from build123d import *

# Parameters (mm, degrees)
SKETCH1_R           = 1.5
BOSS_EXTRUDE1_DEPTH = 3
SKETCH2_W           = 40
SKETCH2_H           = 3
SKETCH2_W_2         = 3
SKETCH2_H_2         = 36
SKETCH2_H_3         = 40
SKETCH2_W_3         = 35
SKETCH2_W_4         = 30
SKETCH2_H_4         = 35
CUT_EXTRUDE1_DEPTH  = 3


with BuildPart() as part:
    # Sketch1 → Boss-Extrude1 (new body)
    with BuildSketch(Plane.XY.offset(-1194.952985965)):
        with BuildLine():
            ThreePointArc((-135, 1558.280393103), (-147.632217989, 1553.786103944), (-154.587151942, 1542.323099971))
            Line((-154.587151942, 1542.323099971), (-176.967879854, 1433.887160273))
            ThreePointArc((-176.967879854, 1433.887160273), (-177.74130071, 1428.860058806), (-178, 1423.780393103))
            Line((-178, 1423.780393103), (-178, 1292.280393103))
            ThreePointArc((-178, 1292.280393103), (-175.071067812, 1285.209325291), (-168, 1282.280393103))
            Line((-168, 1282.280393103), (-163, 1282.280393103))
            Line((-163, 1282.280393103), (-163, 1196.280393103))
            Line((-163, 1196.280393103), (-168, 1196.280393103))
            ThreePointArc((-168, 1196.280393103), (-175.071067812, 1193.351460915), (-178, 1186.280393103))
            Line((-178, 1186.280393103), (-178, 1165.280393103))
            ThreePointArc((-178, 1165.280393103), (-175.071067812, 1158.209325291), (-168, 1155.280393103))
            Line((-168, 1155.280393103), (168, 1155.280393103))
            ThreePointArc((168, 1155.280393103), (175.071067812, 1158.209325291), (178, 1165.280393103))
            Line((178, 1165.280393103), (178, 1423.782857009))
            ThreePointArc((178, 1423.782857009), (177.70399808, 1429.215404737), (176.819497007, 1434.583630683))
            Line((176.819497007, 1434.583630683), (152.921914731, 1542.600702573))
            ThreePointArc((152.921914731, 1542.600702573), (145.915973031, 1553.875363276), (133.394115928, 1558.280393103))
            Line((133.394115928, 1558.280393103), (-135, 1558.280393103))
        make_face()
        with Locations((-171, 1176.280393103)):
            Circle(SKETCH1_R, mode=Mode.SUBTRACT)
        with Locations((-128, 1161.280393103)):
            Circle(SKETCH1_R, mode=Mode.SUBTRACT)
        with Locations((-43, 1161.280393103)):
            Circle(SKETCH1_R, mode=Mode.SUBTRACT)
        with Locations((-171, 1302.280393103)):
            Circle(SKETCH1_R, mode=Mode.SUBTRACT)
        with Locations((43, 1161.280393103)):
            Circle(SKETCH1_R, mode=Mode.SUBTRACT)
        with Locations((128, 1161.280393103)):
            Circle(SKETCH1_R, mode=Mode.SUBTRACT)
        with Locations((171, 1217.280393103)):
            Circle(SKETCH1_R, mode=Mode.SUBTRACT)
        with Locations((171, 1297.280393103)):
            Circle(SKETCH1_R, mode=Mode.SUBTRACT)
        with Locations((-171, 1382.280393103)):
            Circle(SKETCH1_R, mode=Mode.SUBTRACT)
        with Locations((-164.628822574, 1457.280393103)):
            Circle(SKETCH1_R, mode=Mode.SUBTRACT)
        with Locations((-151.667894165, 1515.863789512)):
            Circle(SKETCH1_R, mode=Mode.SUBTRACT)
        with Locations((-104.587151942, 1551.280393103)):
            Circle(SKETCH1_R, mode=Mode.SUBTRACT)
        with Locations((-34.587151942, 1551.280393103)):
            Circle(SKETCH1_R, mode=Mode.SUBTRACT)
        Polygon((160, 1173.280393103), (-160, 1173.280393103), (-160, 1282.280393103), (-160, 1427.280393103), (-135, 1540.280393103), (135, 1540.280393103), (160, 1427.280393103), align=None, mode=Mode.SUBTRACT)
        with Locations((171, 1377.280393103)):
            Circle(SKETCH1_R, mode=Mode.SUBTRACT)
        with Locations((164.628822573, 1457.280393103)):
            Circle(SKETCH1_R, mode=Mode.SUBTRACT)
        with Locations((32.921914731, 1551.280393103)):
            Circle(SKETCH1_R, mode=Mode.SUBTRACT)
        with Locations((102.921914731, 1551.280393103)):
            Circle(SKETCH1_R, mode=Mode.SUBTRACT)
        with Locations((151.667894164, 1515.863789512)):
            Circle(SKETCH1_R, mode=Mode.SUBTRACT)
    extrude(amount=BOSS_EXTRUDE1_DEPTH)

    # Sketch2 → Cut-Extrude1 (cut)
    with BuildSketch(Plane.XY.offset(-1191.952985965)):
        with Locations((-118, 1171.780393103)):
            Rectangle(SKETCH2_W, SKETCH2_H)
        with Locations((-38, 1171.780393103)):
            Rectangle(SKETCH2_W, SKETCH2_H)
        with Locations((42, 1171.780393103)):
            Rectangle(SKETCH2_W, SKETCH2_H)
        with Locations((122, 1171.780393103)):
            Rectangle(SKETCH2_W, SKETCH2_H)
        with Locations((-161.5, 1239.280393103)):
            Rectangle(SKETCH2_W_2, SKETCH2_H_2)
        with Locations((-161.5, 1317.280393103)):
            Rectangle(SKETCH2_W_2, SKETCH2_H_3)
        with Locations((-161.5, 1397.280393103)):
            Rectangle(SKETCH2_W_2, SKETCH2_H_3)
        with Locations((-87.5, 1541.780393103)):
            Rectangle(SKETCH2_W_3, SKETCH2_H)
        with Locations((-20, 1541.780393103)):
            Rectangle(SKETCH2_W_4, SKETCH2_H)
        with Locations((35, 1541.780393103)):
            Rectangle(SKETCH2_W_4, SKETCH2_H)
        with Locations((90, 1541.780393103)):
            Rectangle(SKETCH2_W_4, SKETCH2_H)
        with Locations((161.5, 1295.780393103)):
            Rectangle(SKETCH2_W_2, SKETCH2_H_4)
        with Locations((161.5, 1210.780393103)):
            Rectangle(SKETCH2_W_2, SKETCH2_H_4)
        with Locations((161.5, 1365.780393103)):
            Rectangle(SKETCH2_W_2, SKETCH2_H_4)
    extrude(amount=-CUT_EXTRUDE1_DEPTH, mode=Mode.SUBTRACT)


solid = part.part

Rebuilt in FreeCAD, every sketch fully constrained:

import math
import FreeCAD as App
import Part
import Sketcher


def add_polygon(sketch, points):
    """Adds a closed chain of lines whose ends are joined by coincident constraints."""
    first, n = sketch.GeometryCount, len(points)
    for a, b in zip(points, points[1:] + points[:1]):
        sketch.addGeometry(Part.LineSegment(App.Vector(*a, 0), App.Vector(*b, 0)), False)
    for i in range(n):
        sketch.addConstraint(Sketcher.Constraint("Coincident", first + i, 2, first + (i + 1) % n, 1))

doc = App.newDocument("Part")
params = doc.addObject("Spreadsheet::Sheet", "Params")
for row, (alias, value) in enumerate([
    ("sketch1_diameter", "3 mm"),
    ("sketch1_radius", "20 mm"),
    ("sketch1_radius2", "50 mm"),
    ("sketch1_radius3", "10 mm"),
    ("sketch1_width", "5 mm"),
    ("pad1_length", "3 mm"),
    ("sketch2_width", "40 mm"),
    ("sketch2_width2", "3 mm"),
    ("sketch2_width3", "35 mm"),
    ("sketch2_width4", "30 mm"),
    ("sketch2_height", "36 mm"),
    ("pocket1_length", "3 mm"),
], start=1):
    params.set(f"A{row}", alias)
    params.set(f"B{row}", "=" + value)
    params.setAlias(f"B{row}", alias)

body = doc.addObject("PartDesign::Body", "Body")

sketch1 = doc.addObject("Sketcher::SketchObject", "Sketch")
body.addObject(sketch1)
sketch1.AttachmentSupport = (doc.XY_Plane, [""])
sketch1.MapMode = "FlatFace"
sketch1.AttachmentOffset = App.Placement(App.Vector(0, 0, -1194.952986), App.Rotation())
sketch1.addGeometry(Part.ArcOfCircle(Part.Circle(App.Vector(-135, 1538.3, 0), App.Vector(0, 0, 1), 20), math.radians(90), math.radians(168)), False)
sketch1.addGeometry(Part.LineSegment(App.Vector(-154.6, 1542.3, 0), App.Vector(-177, 1433.9, 0)), False)
sketch1.addGeometry(Part.ArcOfCircle(Part.Circle(App.Vector(-128, 1423.8, 0), App.Vector(0, 0, 1), 50), math.radians(168.34), math.radians(180)), False)
sketch1.addGeometry(Part.LineSegment(App.Vector(-178, 1423.8, 0), App.Vector(-178, 1292.3, 0)), False)
sketch1.addGeometry(Part.ArcOfCircle(Part.Circle(App.Vector(-168, 1292.3, 0), App.Vector(0, 0, 1), 10), math.radians(180), math.radians(270)), False)
sketch1.addGeometry(Part.LineSegment(App.Vector(-168, 1282.3, 0), App.Vector(-163, 1282.3, 0)), False)
sketch1.addGeometry(Part.LineSegment(App.Vector(-163, 1282.3, 0), App.Vector(-163, 1196.3, 0)), False)
sketch1.addGeometry(Part.LineSegment(App.Vector(-163, 1196.3, 0), App.Vector(-168, 1196.3, 0)), False)
sketch1.addGeometry(Part.ArcOfCircle(Part.Circle(App.Vector(-168, 1186.3, 0), App.Vector(0, 0, 1), 10), math.radians(90), math.radians(180)), False)
sketch1.addGeometry(Part.LineSegment(App.Vector(-178, 1186.3, 0), App.Vector(-178, 1165.3, 0)), False)
sketch1.addGeometry(Part.ArcOfCircle(Part.Circle(App.Vector(-168, 1165.3, 0), App.Vector(0, 0, 1), 10), math.radians(180), math.radians(270)), False)
sketch1.addGeometry(Part.LineSegment(App.Vector(-168, 1155.3, 0), App.Vector(168, 1155.3, 0)), False)
sketch1.addGeometry(Part.ArcOfCircle(Part.Circle(App.Vector(168, 1165.3, 0), App.Vector(0, 0, 1), 10), math.radians(-90), math.radians(0)), False)
sketch1.addGeometry(Part.LineSegment(App.Vector(178, 1165.3, 0), App.Vector(178, 1423.8, 0)), False)
sketch1.addGeometry(Part.ArcOfCircle(Part.Circle(App.Vector(128, 1423.8, 0), App.Vector(0, 0, 1), 50), math.radians(0), math.radians(12.48)), False)
sketch1.addGeometry(Part.LineSegment(App.Vector(176.8, 1434.6, 0), App.Vector(152.9, 1542.6, 0)), False)
sketch1.addGeometry(Part.ArcOfCircle(Part.Circle(App.Vector(133.4, 1538.3, 0), App.Vector(0, 0, 1), 20), math.radians(12), math.radians(90)), False)
sketch1.addGeometry(Part.LineSegment(App.Vector(133.4, 1558.3, 0), App.Vector(-135, 1558.3, 0)), False)
sketch1.addGeometry(Part.Circle(App.Vector(-171, 1176.3, 0), App.Vector(0, 0, 1), 1.5), False)
sketch1.addGeometry(Part.Circle(App.Vector(-128, 1161.3, 0), App.Vector(0, 0, 1), 1.5), False)
sketch1.addGeometry(Part.Circle(App.Vector(-43, 1161.3, 0), App.Vector(0, 0, 1), 1.5), False)
sketch1.addGeometry(Part.Circle(App.Vector(-171, 1302.3, 0), App.Vector(0, 0, 1), 1.5), False)
sketch1.addGeometry(Part.Circle(App.Vector(43, 1161.3, 0), App.Vector(0, 0, 1), 1.5), False)
sketch1.addGeometry(Part.Circle(App.Vector(128, 1161.3, 0), App.Vector(0, 0, 1), 1.5), False)
sketch1.addGeometry(Part.Circle(App.Vector(171, 1217.3, 0), App.Vector(0, 0, 1), 1.5), False)
sketch1.addGeometry(Part.Circle(App.Vector(171, 1297.3, 0), App.Vector(0, 0, 1), 1.5), False)
sketch1.addGeometry(Part.Circle(App.Vector(-171, 1382.3, 0), App.Vector(0, 0, 1), 1.5), False)
sketch1.addGeometry(Part.Circle(App.Vector(-164.6, 1457.3, 0), App.Vector(0, 0, 1), 1.5), False)
sketch1.addGeometry(Part.Circle(App.Vector(-151.7, 1515.9, 0), App.Vector(0, 0, 1), 1.5), False)
sketch1.addGeometry(Part.Circle(App.Vector(-104.6, 1551.3, 0), App.Vector(0, 0, 1), 1.5), False)
sketch1.addGeometry(Part.Circle(App.Vector(-34.6, 1551.3, 0), App.Vector(0, 0, 1), 1.5), False)
add_polygon(sketch1, [(160, 1427.3), (160, 1173.3), (-160, 1173.3), (-160, 1427.3), (-135, 1540.3), (135, 1540.3)])
sketch1.addGeometry(Part.Circle(App.Vector(171, 1377.3, 0), App.Vector(0, 0, 1), 1.5), False)
sketch1.addGeometry(Part.Circle(App.Vector(32.9, 1551.3, 0), App.Vector(0, 0, 1), 1.5), False)
sketch1.addGeometry(Part.Circle(App.Vector(164.6, 1457.3, 0), App.Vector(0, 0, 1), 1.5), False)
sketch1.addGeometry(Part.Circle(App.Vector(102.9, 1551.3, 0), App.Vector(0, 0, 1), 1.5), False)
sketch1.addGeometry(Part.Circle(App.Vector(151.7, 1515.9, 0), App.Vector(0, 0, 1), 1.5), False)
sketch1.addConstraint([
    Sketcher.Constraint("Tangent", 0, 2, 1, 1),
    Sketcher.Constraint("Tangent", 1, 2, 2, 1),
    Sketcher.Constraint("Tangent", 2, 2, 3, 1),
    Sketcher.Constraint("Tangent", 3, 2, 4, 1),
    Sketcher.Constraint("Tangent", 4, 2, 5, 1),
    Sketcher.Constraint("Coincident", 5, 2, 6, 1),
    Sketcher.Constraint("Coincident", 6, 2, 7, 1),
    Sketcher.Constraint("Tangent", 7, 2, 8, 1),
    Sketcher.Constraint("Tangent", 8, 2, 9, 1),
    Sketcher.Constraint("Tangent", 9, 2, 10, 1),
    Sketcher.Constraint("Tangent", 10, 2, 11, 1),
    Sketcher.Constraint("Tangent", 11, 2, 12, 1),
    Sketcher.Constraint("Tangent", 12, 2, 13, 1),
    Sketcher.Constraint("Tangent", 13, 2, 14, 1),
    Sketcher.Constraint("Tangent", 14, 2, 15, 1),
    Sketcher.Constraint("Tangent", 15, 2, 16, 1),
    Sketcher.Constraint("Tangent", 16, 2, 17, 1),
    Sketcher.Constraint("Tangent", 17, 2, 0, 1),
    Sketcher.Constraint("Vertical", 3),
    Sketcher.Constraint("Horizontal", 5),
    Sketcher.Constraint("Vertical", 6),
    Sketcher.Constraint("Horizontal", 7),
    Sketcher.Constraint("Vertical", 9),
    Sketcher.Constraint("Horizontal", 11),
    Sketcher.Constraint("Vertical", 13),
    Sketcher.Constraint("Horizontal", 17),
    Sketcher.Constraint("Vertical", 31),
    Sketcher.Constraint("Horizontal", 32),
    Sketcher.Constraint("Vertical", 33),
    Sketcher.Constraint("Horizontal", 35),
    Sketcher.Constraint("Equal", 4, 8),
    Sketcher.Constraint("Equal", 8, 10),
    Sketcher.Constraint("Equal", 10, 12),
    Sketcher.Constraint("Equal", 2, 14),
    Sketcher.Constraint("Equal", 0, 16),
    Sketcher.Constraint("Equal", 18, 19),
    Sketcher.Constraint("Equal", 19, 20),
    Sketcher.Constraint("Equal", 20, 21),
    Sketcher.Constraint("Equal", 21, 22),
    Sketcher.Constraint("Equal", 22, 23),
    Sketcher.Constraint("Equal", 23, 24),
    Sketcher.Constraint("Equal", 24, 25),
    Sketcher.Constraint("Equal", 25, 26),
    Sketcher.Constraint("Equal", 26, 27),
    Sketcher.Constraint("Equal", 27, 28),
    Sketcher.Constraint("Equal", 28, 29),
    Sketcher.Constraint("Equal", 29, 30),
    Sketcher.Constraint("Equal", 30, 37),
    Sketcher.Constraint("Equal", 37, 38),
    Sketcher.Constraint("Equal", 38, 39),
    Sketcher.Constraint("Equal", 39, 40),
    Sketcher.Constraint("Equal", 40, 41),
    Sketcher.Constraint("Symmetric", 20, 3, 22, 3, -2),
    Sketcher.Constraint("Symmetric", 19, 3, 23, 3, -2),
    Sketcher.Constraint("Symmetric", 27, 3, 39, 3, -2),
    Sketcher.Constraint("Symmetric", 28, 3, 41, 3, -2),
    Sketcher.Constraint("Symmetric", 33, 2, 36, 2, -2),
    Sketcher.Constraint("Parallel", 15, 36),
    Sketcher.Constraint("Horizontal", 19, 3, 20, 3),
    Sketcher.Constraint("Horizontal", 29, 3, 30, 3),
    Sketcher.Constraint("Horizontal", 30, 3, 38, 3),
    Sketcher.Constraint("Horizontal", 38, 3, 40, 3),
    Sketcher.Constraint("Vertical", 4, 3, 8, 3),
    Sketcher.Constraint("Vertical", 2, 3, 19, 3),
    Sketcher.Constraint("Vertical", 18, 3, 21, 3),
    Sketcher.Constraint("Vertical", 14, 3, 23, 3),
    Sketcher.Constraint("Vertical", 24, 3, 25, 3),
    Sketcher.Constraint("Vertical", 21, 3, 26, 3),
    Sketcher.Constraint("Vertical", 25, 3, 37, 3),
    Sketcher.Constraint("Vertical", 17, 2, 34, 2),
    Sketcher.Constraint("Equal", 34, 36),
    Sketcher.Constraint("Diameter", 18, 3.0),
    Sketcher.Constraint("Radius", 0, 20.0),
    Sketcher.Constraint("Radius", 2, 50.0),
    Sketcher.Constraint("Radius", 4, 10.0),
    Sketcher.Constraint("DistanceX", 5, 1, 5, 2, 5.0),
    Sketcher.Constraint("DistanceX", 11, 1, 11, 2, 336.0),
    Sketcher.Constraint("DistanceX", 32, 2, 32, 1, 320.0),
    Sketcher.Constraint("DistanceX", 35, 1, 35, 2, 270.0),
    Sketcher.Constraint("DistanceY", 6, 2, 6, 1, 86.0),
    Sketcher.Constraint("DistanceY", 9, 2, 9, 1, 21.0),
    Sketcher.Constraint("DistanceY", 31, 2, 31, 1, 254.0),
    Sketcher.Constraint("DistanceY", 3, 2, 3, 1, 131.5),
    Sketcher.Constraint("DistanceX", 18, 3, -1, 1, 171.0),
    Sketcher.Constraint("DistanceX", 20, 3, -1, 1, 43.0),
    Sketcher.Constraint("DistanceX", -1, 1, 24, 3, 171.0),
    Sketcher.Constraint("DistanceY", 4, 3, 0, 3, 246.0),
    Sketcher.Constraint("DistanceY", 18, 3, 8, 3, 10.0),
    Sketcher.Constraint("DistanceY", 19, 3, 10, 3, 4.0),
    Sketcher.Constraint("DistanceY", 4, 3, 21, 3, 10.0),
    Sketcher.Constraint("DistanceY", 12, 3, 24, 3, 52.0),
    Sketcher.Constraint("DistanceY", 24, 3, 25, 3, 80.0),
    Sketcher.Constraint("DistanceY", 21, 3, 26, 3, 80.0),
    Sketcher.Constraint("DistanceY", 26, 3, 27, 3, 75.0),
    Sketcher.Constraint("DistanceY", 0, 3, 29, 3, 13.0),
    Sketcher.Constraint("DistanceX", 29, 3, 30, 3, 70.0),
    Sketcher.Constraint("DistanceY", 25, 3, 37, 3, 80.0),
    Sketcher.Constraint("DistanceX", 38, 3, 40, 3, 70.0),
    Sketcher.Constraint("DistanceX", 0, 2, 29, 3, 50.0),
    Sketcher.Constraint("DistanceX", 40, 3, 15, 2, 50.0),
    Sketcher.Constraint("DistanceY", 12, 3, 31, 2, 8.0),
    Sketcher.Constraint("DistanceY", 0, 3, 34, 2, 2.0),
    Sketcher.Constraint("DistanceY", -1, 1, 0, 2, 1542.3231),
    Sketcher.Constraint("Distance", 15, 110.62903),
    Sketcher.Constraint("DistanceY", -1, 1, 28, 3, 1515.86379),
    Sketcher.Constraint("DistanceX", 27, 3, 28, 3, 12.960928),
    Sketcher.Constraint("DistanceX", 27, 3, 29, 3, 60.041671),
])
sketch1.setExpression("Constraints[77]", "Params.sketch1_diameter")
sketch1.setExpression("Constraints[78]", "Params.sketch1_radius")
sketch1.setExpression("Constraints[79]", "Params.sketch1_radius2")
sketch1.setExpression("Constraints[80]", "Params.sketch1_radius3")
sketch1.setExpression("Constraints[81]", "Params.sketch1_width")
pad1 = doc.addObject("PartDesign::Pad", "Pad")
body.addObject(pad1)
pad1.Profile = sketch1
pad1.setExpression("Length", "Params.pad1_length")

sketch2 = doc.addObject("Sketcher::SketchObject", "Sketch001")
body.addObject(sketch2)
sketch2.AttachmentSupport = (doc.XY_Plane, [""])
sketch2.MapMode = "FlatFace"
sketch2.AttachmentOffset = App.Placement(App.Vector(0, 0, -1191.952986), App.Rotation())
add_polygon(sketch2, [(-138, 1173.3), (-138, 1170.3), (-98, 1170.3), (-98, 1173.3)])
add_polygon(sketch2, [(-58, 1173.3), (-58, 1170.3), (-18, 1170.3), (-18, 1173.3)])
add_polygon(sketch2, [(22, 1173.3), (22, 1170.3), (62, 1170.3), (62, 1173.3)])
add_polygon(sketch2, [(102, 1173.3), (102, 1170.3), (142, 1170.3), (142, 1173.3)])
add_polygon(sketch2, [(-163, 1257.3), (-163, 1221.3), (-160, 1221.3), (-160, 1257.3)])
add_polygon(sketch2, [(-163, 1337.3), (-163, 1297.3), (-160, 1297.3), (-160, 1337.3)])
add_polygon(sketch2, [(-163, 1417.3), (-163, 1377.3), (-160, 1377.3), (-160, 1417.3)])
add_polygon(sketch2, [(-105, 1543.3), (-105, 1540.3), (-70, 1540.3), (-70, 1543.3)])
add_polygon(sketch2, [(-35, 1543.3), (-35, 1540.3), (-5, 1540.3), (-5, 1543.3)])
add_polygon(sketch2, [(20, 1543.3), (20, 1540.3), (50, 1540.3), (50, 1543.3)])
add_polygon(sketch2, [(75, 1543.3), (75, 1540.3), (105, 1540.3), (105, 1543.3)])
add_polygon(sketch2, [(160, 1313.3), (160, 1278.3), (163, 1278.3), (163, 1313.3)])
add_polygon(sketch2, [(160, 1228.3), (160, 1193.3), (163, 1193.3), (163, 1228.3)])
add_polygon(sketch2, [(160, 1383.3), (160, 1348.3), (163, 1348.3), (163, 1383.3)])
sketch2.addConstraint([
    Sketcher.Constraint("Vertical", 0),
    Sketcher.Constraint("Horizontal", 1),
    Sketcher.Constraint("Vertical", 2),
    Sketcher.Constraint("Horizontal", 3),
    Sketcher.Constraint("Vertical", 4),
    Sketcher.Constraint("Horizontal", 5),
    Sketcher.Constraint("Vertical", 6),
    Sketcher.Constraint("Horizontal", 7),
    Sketcher.Constraint("Vertical", 8),
    Sketcher.Constraint("Horizontal", 9),
    Sketcher.Constraint("Vertical", 10),
    Sketcher.Constraint("Horizontal", 11),
    Sketcher.Constraint("Vertical", 12),
    Sketcher.Constraint("Horizontal", 13),
    Sketcher.Constraint("Vertical", 14),
    Sketcher.Constraint("Horizontal", 15),
    Sketcher.Constraint("Vertical", 16),
    Sketcher.Constraint("Horizontal", 17),
    Sketcher.Constraint("Vertical", 18),
    Sketcher.Constraint("Horizontal", 19),
    Sketcher.Constraint("Vertical", 20),
    Sketcher.Constraint("Horizontal", 21),
    Sketcher.Constraint("Vertical", 22),
    Sketcher.Constraint("Horizontal", 23),
    Sketcher.Constraint("Vertical", 24),
    Sketcher.Constraint("Horizontal", 25),
    Sketcher.Constraint("Vertical", 26),
    Sketcher.Constraint("Horizontal", 27),
    Sketcher.Constraint("Vertical", 28),
    Sketcher.Constraint("Horizontal", 29),
    Sketcher.Constraint("Vertical", 30),
    Sketcher.Constraint("Horizontal", 31),
    Sketcher.Constraint("Vertical", 32),
    Sketcher.Constraint("Horizontal", 33),
    Sketcher.Constraint("Vertical", 34),
    Sketcher.Constraint("Horizontal", 35),
    Sketcher.Constraint("Vertical", 36),
    Sketcher.Constraint("Horizontal", 37),
    Sketcher.Constraint("Vertical", 38),
    Sketcher.Constraint("Horizontal", 39),
    Sketcher.Constraint("Vertical", 40),
    Sketcher.Constraint("Horizontal", 41),
    Sketcher.Constraint("Vertical", 42),
    Sketcher.Constraint("Horizontal", 43),
    Sketcher.Constraint("Vertical", 44),
    Sketcher.Constraint("Horizontal", 45),
    Sketcher.Constraint("Vertical", 46),
    Sketcher.Constraint("Horizontal", 47),
    Sketcher.Constraint("Vertical", 48),
    Sketcher.Constraint("Horizontal", 49),
    Sketcher.Constraint("Vertical", 50),
    Sketcher.Constraint("Horizontal", 51),
    Sketcher.Constraint("Vertical", 52),
    Sketcher.Constraint("Horizontal", 53),
    Sketcher.Constraint("Vertical", 54),
    Sketcher.Constraint("Horizontal", 55),
    Sketcher.Constraint("Symmetric", 28, 2, 41, 2, -2),
    Sketcher.Constraint("Horizontal", 1, 2, 4, 2),
    Sketcher.Constraint("Horizontal", 3, 2, 6, 2),
    Sketcher.Constraint("Horizontal", 5, 2, 8, 2),
    Sketcher.Constraint("Horizontal", 7, 2, 10, 2),
    Sketcher.Constraint("Horizontal", 9, 2, 12, 2),
    Sketcher.Constraint("Horizontal", 11, 2, 14, 2),
    Sketcher.Constraint("Horizontal", 29, 2, 32, 2),
    Sketcher.Constraint("Horizontal", 31, 2, 34, 2),
    Sketcher.Constraint("Horizontal", 33, 2, 36, 2),
    Sketcher.Constraint("Horizontal", 35, 2, 38, 2),
    Sketcher.Constraint("Horizontal", 39, 2, 42, 2),
    Sketcher.Constraint("Vertical", 19, 2, 20, 2),
    Sketcher.Constraint("Vertical", 18, 2, 21, 2),
    Sketcher.Constraint("Vertical", 23, 2, 24, 2),
    Sketcher.Constraint("Vertical", 22, 2, 25, 2),
    Sketcher.Constraint("Vertical", 47, 2, 48, 2),
    Sketcher.Constraint("Vertical", 46, 2, 49, 2),
    Sketcher.Constraint("Vertical", 51, 2, 52, 2),
    Sketcher.Constraint("Vertical", 50, 2, 53, 2),
    Sketcher.Constraint("Equal", 3, 5),
    Sketcher.Constraint("Equal", 7, 9),
    Sketcher.Constraint("Equal", 11, 13),
    Sketcher.Constraint("Equal", 35, 37),
    Sketcher.Constraint("Equal", 39, 41),
    Sketcher.Constraint("Equal", 27, 45),
    Sketcher.Constraint("Equal", 55, 0),
    Sketcher.Constraint("Equal", 15, 20),
    Sketcher.Constraint("Equal", 22, 24),
    Sketcher.Constraint("Equal", 14, 28),
    Sketcher.Constraint("Equal", 31, 44),
    Sketcher.Constraint("Equal", 46, 48),
    Sketcher.Constraint("Equal", 50, 52),
    Sketcher.Constraint("DistanceX", 1, 1, 1, 2, 40.0),
    Sketcher.Constraint("DistanceX", 17, 1, 17, 2, 3.0),
    Sketcher.Constraint("DistanceX", 29, 1, 29, 2, 35.0),
    Sketcher.Constraint("DistanceX", 33, 1, 33, 2, 30.0),
    Sketcher.Constraint("DistanceY", 16, 2, 16, 1, 36.0),
    Sketcher.Constraint("DistanceX", 0, 2, -1, 1, 138.0),
    Sketcher.Constraint("DistanceX", 4, 2, -1, 1, 58.0),
    Sketcher.Constraint("DistanceX", -1, 1, 8, 2, 22.0),
    Sketcher.Constraint("DistanceX", -1, 1, 12, 2, 102.0),
    Sketcher.Constraint("DistanceX", 16, 2, -1, 1, 163.0),
    Sketcher.Constraint("DistanceX", 28, 2, -1, 1, 105.0),
    Sketcher.Constraint("DistanceX", 32, 2, -1, 1, 35.0),
    Sketcher.Constraint("DistanceX", -1, 1, 36, 2, 20.0),
    Sketcher.Constraint("DistanceX", -1, 1, 44, 2, 160.0),
    Sketcher.Constraint("DistanceY", 3, 2, 16, 2, 48.0),
    Sketcher.Constraint("DistanceY", 19, 2, 20, 2, 40.0),
    Sketcher.Constraint("DistanceY", 23, 2, 24, 2, 40.0),
    Sketcher.Constraint("DistanceY", 26, 2, 28, 2, 123.0),
    Sketcher.Constraint("DistanceY", 14, 2, 44, 2, 105.0),
    Sketcher.Constraint("DistanceY", 14, 2, 48, 2, 20.0),
    Sketcher.Constraint("DistanceY", 47, 2, 52, 2, 35.0),
    Sketcher.Constraint("DistanceY", -1, 1, 0, 2, 1170.280393),
])
sketch2.setExpression("Constraints[145]", "Params.sketch2_width")
sketch2.setExpression("Constraints[146]", "Params.sketch2_width2")
sketch2.setExpression("Constraints[147]", "Params.sketch2_width3")
sketch2.setExpression("Constraints[148]", "Params.sketch2_width4")
sketch2.setExpression("Constraints[149]", "Params.sketch2_height")
pocket1 = doc.addObject("PartDesign::Pocket", "Pocket")
body.addObject(pocket1)
pocket1.Profile = sketch2
pocket1.setExpression("Length", "Params.pocket1_length")

doc.recompute()
